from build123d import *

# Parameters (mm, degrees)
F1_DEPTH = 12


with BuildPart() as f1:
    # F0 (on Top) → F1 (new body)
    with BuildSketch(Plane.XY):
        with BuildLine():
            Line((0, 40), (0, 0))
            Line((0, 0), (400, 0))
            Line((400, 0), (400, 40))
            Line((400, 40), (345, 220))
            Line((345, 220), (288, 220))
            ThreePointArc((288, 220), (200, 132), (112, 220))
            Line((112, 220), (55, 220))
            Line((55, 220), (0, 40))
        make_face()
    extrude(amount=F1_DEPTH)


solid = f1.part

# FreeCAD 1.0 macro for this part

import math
import FreeCAD as App
import Part
import Sketcher

doc = App.newDocument("Part")
body = doc.addObject("PartDesign::Body", "Body")

sketch1 = doc.addObject("Sketcher::SketchObject", "Sketch")
body.addObject(sketch1)
sketch1.AttachmentSupport = (doc.XY_Plane, [""])
sketch1.MapMode = "FlatFace"
sketch1.addGeometry([
    Part.LineSegment(App.Vector(0, 40, 0), App.Vector(0, 0, 0)),
    Part.LineSegment(App.Vector(0, 0, 0), App.Vector(400, 0, 0)),
    Part.LineSegment(App.Vector(400, 0, 0), App.Vector(400, 40, 0)),
    Part.LineSegment(App.Vector(400, 40, 0), App.Vector(345, 220, 0)),
    Part.LineSegment(App.Vector(345, 220, 0), App.Vector(288, 220, 0)),
    Part.ArcOfCircle(Part.Circle(App.Vector(200, 220, 0), App.Vector(0, 0, 1), 88), math.radians(180), math.radians(360)),
    Part.LineSegment(App.Vector(112, 220, 0), App.Vector(55, 220, 0)),
    Part.LineSegment(App.Vector(55, 220, 0), App.Vector(0, 40, 0)),
], False)
sketch1.addConstraint([
    Sketcher.Constraint("Coincident", 0, 2, 1, 1),
    Sketcher.Constraint("Coincident", 1, 2, 2, 1),
    Sketcher.Constraint("Coincident", 2, 2, 3, 1),
    Sketcher.Constraint("Coincident", 3, 2, 4, 1),
    Sketcher.Constraint("Coincident", 4, 2, 5, 2),
    Sketcher.Constraint("Coincident", 5, 1, 6, 1),
    Sketcher.Constraint("Coincident", 6, 2, 7, 1),
    Sketcher.Constraint("Coincident", 7, 2, 0, 1),
    Sketcher.Constraint("Vertical", 0),
    Sketcher.Constraint("Horizontal", 1),
    Sketcher.Constraint("Vertical", 2),
    Sketcher.Constraint("Horizontal", 4),
    Sketcher.Constraint("Horizontal", 6),
    Sketcher.Constraint("Coincident", 0, 2, -1, 1),
    Sketcher.Constraint("Horizontal", 5, 3, 3, 2),
    Sketcher.Constraint("Horizontal", 4, 2, 5, 1),
    Sketcher.Constraint("Horizontal", 2, 2, 7, 2),
    Sketcher.Constraint("Equal", 4, 6),
    Sketcher.Constraint("Equal", 3, 7),
    Sketcher.Constraint("Radius", 5, 88.0),
    Sketcher.Constraint("DistanceX", 1, 1, 1, 2, 400.0),
    Sketcher.Constraint("DistanceX", 4, 2, 4, 1, 57.0),
    Sketcher.Constraint("DistanceY", 0, 2, 0, 1, 40.0),
    Sketcher.Constraint("DistanceY", -1, 1, 5, 3, 220.0),
])
pad1 = doc.addObject("PartDesign::Pad", "Pad")
body.addObject(pad1)
pad1.Profile = sketch1
pad1.Length = 12

doc.recompute()
